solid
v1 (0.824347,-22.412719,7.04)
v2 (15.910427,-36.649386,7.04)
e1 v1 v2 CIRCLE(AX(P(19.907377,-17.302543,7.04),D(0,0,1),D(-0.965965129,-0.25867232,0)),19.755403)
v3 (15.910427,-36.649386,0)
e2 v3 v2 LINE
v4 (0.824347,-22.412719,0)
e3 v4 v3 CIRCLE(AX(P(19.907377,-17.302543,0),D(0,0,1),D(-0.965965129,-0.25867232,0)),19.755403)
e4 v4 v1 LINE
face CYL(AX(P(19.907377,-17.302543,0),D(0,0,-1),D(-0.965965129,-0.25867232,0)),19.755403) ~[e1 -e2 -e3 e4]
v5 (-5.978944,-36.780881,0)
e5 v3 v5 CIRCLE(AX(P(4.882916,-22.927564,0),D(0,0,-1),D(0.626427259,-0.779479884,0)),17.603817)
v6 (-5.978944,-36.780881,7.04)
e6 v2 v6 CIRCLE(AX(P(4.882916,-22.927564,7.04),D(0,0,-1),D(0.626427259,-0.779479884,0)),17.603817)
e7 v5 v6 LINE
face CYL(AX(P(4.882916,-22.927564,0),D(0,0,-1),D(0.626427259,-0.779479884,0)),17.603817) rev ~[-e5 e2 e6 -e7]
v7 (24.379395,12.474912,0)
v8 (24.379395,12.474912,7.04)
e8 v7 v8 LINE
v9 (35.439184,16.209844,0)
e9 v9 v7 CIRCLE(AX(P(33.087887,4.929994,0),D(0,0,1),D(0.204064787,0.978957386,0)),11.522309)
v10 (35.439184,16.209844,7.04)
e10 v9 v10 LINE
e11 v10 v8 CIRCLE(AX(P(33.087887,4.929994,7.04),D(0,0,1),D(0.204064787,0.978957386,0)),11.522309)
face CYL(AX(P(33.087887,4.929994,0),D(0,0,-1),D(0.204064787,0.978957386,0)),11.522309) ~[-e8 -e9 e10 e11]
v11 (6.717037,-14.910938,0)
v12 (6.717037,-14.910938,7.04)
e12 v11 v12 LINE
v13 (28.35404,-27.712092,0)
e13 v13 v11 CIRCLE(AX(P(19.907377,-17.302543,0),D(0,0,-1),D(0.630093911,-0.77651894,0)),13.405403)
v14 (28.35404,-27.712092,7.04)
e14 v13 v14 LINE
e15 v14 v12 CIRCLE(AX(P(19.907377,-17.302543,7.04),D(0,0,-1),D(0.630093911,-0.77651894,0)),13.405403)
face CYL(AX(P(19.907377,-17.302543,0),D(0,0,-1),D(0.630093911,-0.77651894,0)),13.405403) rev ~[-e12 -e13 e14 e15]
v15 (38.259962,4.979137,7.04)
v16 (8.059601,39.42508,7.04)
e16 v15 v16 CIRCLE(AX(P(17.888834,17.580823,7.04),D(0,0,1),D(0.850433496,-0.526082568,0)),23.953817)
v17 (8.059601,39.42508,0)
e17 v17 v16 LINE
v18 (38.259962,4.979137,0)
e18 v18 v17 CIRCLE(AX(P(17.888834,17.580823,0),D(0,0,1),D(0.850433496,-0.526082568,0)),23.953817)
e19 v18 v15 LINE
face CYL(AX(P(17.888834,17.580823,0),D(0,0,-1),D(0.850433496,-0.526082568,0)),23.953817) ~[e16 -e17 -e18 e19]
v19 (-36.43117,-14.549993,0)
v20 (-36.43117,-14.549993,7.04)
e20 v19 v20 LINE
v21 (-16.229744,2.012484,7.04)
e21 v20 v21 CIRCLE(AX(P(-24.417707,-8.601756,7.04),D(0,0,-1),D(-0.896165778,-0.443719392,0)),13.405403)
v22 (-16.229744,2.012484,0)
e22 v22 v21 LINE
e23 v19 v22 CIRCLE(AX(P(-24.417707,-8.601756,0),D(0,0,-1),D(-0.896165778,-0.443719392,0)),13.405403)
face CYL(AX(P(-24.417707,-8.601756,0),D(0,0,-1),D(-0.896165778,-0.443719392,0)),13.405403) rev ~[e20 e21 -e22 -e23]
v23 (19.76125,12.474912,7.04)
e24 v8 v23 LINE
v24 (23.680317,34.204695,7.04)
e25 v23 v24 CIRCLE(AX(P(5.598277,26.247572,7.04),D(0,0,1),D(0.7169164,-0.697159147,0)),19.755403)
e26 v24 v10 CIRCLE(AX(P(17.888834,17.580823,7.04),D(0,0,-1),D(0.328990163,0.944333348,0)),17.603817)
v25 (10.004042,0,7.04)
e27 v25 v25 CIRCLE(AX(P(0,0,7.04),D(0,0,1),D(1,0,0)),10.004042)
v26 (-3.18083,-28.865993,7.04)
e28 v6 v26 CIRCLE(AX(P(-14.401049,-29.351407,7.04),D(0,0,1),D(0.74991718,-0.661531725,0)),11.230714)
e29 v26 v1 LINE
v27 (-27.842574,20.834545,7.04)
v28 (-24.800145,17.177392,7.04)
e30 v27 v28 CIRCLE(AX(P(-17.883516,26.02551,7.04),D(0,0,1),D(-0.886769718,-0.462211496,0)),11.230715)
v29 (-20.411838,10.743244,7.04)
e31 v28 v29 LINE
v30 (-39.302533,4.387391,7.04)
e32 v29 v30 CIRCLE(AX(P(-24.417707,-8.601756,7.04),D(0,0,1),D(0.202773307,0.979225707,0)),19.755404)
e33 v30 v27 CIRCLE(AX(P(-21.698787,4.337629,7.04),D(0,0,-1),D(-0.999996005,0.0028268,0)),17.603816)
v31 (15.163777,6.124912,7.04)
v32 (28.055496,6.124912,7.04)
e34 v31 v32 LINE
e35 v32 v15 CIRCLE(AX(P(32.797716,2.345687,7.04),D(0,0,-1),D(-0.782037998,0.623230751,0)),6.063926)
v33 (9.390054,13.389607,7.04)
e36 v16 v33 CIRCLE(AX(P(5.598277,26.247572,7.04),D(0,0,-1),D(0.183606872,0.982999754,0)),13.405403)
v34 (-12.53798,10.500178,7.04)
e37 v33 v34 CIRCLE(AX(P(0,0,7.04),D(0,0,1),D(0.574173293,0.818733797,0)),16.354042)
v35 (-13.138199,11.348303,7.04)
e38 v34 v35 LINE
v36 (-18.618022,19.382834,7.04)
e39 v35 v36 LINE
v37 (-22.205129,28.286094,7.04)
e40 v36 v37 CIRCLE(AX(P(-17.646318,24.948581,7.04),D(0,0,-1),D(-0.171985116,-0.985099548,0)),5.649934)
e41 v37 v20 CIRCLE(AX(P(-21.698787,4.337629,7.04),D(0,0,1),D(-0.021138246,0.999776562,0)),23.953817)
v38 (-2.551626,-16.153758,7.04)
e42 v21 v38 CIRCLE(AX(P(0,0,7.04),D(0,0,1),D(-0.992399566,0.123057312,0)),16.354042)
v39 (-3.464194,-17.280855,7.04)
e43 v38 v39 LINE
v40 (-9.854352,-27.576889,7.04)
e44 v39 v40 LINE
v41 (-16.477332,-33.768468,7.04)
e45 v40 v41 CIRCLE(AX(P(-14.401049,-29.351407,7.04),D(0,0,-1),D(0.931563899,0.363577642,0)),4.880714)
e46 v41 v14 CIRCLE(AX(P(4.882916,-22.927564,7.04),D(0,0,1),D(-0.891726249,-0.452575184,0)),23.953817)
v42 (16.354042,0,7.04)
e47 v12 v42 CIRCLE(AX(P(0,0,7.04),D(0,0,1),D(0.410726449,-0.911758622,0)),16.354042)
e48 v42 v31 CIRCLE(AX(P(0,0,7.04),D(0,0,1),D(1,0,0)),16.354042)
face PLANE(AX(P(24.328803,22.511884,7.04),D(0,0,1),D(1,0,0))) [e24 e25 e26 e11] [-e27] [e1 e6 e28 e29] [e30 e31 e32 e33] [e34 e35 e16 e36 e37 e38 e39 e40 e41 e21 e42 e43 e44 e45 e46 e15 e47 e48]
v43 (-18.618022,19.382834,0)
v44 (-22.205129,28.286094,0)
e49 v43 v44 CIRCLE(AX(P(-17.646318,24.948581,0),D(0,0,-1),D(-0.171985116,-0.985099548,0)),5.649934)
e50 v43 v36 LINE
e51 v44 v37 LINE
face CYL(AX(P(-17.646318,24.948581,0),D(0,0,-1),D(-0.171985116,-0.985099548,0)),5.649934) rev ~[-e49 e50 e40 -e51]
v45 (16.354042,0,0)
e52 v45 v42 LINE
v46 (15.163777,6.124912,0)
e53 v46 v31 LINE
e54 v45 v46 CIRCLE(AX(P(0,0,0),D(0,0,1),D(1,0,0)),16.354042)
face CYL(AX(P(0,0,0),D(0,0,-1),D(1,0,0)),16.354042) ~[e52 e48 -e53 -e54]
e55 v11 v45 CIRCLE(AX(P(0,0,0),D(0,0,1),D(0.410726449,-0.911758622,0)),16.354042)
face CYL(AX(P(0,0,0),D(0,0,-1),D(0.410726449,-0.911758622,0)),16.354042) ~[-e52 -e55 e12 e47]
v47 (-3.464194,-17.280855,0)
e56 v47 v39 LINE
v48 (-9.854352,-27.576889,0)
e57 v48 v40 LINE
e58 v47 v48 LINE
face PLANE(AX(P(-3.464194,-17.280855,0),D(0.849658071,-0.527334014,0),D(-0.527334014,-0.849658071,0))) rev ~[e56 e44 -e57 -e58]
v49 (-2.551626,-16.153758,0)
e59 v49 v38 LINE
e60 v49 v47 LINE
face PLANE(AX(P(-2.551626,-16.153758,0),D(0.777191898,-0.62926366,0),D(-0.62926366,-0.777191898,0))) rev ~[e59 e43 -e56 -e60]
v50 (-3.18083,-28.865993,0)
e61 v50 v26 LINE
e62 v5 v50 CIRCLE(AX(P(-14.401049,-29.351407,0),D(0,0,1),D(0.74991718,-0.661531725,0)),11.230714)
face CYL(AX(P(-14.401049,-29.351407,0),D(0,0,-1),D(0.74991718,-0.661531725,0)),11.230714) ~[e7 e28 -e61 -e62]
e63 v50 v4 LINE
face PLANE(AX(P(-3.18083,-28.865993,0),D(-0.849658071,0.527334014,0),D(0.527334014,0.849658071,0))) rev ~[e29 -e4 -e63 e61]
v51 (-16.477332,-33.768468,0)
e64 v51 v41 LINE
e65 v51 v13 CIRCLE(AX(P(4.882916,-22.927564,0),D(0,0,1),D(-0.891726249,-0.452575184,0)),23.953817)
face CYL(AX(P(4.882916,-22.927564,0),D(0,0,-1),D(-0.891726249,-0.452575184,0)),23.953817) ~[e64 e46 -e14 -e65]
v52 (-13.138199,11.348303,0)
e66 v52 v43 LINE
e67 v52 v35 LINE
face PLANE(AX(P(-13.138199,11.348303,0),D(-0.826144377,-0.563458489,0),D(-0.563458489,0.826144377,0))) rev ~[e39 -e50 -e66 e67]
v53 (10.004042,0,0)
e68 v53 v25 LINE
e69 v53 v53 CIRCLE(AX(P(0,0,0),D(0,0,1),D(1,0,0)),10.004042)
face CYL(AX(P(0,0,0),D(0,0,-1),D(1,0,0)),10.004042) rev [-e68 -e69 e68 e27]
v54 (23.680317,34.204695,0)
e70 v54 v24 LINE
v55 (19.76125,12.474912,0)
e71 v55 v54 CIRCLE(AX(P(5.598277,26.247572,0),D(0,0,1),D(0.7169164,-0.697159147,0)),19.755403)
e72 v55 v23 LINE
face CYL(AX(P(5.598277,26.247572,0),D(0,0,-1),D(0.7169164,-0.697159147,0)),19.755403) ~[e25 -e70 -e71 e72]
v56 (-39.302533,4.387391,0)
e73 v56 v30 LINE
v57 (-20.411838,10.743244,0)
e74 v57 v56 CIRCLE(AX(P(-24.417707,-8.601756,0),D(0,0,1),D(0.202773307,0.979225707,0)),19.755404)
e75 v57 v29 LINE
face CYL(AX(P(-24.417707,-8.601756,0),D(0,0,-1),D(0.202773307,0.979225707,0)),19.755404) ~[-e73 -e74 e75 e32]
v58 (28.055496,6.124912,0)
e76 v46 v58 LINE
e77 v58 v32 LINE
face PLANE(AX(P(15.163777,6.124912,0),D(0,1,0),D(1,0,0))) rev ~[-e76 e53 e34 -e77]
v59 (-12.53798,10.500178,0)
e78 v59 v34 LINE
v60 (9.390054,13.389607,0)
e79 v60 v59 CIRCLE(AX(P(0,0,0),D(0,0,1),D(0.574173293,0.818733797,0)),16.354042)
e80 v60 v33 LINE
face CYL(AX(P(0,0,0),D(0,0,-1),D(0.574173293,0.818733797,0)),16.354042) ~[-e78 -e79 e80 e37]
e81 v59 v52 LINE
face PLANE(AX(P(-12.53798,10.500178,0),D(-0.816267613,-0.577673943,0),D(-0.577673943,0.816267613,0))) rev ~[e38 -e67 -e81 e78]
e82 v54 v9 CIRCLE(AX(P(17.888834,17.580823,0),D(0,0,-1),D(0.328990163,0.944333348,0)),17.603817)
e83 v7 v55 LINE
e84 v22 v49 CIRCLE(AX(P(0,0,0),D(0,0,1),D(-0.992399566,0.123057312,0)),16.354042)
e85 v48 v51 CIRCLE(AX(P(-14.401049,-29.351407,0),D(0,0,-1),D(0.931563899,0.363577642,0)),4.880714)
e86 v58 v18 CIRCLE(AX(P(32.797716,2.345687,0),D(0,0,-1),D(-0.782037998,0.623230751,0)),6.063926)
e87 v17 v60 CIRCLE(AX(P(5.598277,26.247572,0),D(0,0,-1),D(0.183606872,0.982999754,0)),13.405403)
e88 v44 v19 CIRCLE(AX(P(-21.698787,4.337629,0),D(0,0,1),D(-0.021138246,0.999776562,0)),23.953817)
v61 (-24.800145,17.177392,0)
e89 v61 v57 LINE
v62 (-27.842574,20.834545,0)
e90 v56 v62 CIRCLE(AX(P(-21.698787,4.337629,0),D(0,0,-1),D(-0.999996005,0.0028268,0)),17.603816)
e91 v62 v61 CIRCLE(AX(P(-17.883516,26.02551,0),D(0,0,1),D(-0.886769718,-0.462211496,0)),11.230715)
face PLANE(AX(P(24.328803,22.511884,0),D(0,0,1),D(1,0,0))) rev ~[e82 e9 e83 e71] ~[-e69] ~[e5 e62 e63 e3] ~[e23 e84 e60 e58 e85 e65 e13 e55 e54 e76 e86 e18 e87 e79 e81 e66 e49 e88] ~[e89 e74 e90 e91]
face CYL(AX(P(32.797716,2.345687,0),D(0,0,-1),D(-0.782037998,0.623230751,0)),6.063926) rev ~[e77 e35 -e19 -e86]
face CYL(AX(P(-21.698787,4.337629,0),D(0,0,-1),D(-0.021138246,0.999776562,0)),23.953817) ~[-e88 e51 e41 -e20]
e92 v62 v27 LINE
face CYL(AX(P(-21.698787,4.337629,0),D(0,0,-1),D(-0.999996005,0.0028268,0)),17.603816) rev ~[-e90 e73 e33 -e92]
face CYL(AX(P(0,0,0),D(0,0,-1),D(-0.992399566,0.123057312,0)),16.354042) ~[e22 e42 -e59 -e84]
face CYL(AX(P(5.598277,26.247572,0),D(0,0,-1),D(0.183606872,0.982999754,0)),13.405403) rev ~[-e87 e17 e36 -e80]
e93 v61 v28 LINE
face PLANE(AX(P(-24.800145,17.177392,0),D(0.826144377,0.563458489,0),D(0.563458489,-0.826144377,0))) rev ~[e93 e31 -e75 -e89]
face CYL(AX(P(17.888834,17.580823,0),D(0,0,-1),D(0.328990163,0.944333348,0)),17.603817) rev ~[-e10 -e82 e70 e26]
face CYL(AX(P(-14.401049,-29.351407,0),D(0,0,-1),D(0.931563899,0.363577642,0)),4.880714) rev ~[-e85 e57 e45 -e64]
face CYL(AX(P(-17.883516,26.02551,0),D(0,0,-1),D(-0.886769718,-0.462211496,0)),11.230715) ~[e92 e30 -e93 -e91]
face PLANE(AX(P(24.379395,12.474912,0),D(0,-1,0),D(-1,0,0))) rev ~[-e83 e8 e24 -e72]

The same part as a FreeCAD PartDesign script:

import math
import FreeCAD as App
import Part
import Sketcher

V = App.Vector

doc = App.newDocument("Part")
body = doc.addObject("PartDesign::Body", "Body")

sketch1 = body.newObject("Sketcher::SketchObject", "Sketch")
sketch1.AttachmentSupport = (doc.getObject("XY_Plane"), [""])
sketch1.MapMode = "FlatFace"
sketch1.addGeometry(Part.ArcOfCircle(Part.Circle(V(5.598277, 26.247572, 0), V(0, 0, 1), 13.405403), math.radians(-73.569364), math.radians(79.420079)), False)
sketch1.addGeometry(Part.ArcOfCircle(Part.Circle(V(0, 0, 0), V(0, 0, 1), 16.354042), math.radians(54.958242), math.radians(140.054848)), False)
sketch1.addGeometry(Part.LineSegment(V(-12.53798, 10.500178, 0), V(-13.138199, 11.348303, 0)), False)
sketch1.addGeometry(Part.LineSegment(V(-13.138199, 11.348303, 0), V(-18.618022, 19.382834, 0)), False)
sketch1.addGeometry(Part.ArcOfCircle(Part.Circle(V(-17.646318, 24.948581, 0), V(0, 0, 1), 5.649934), math.radians(143.792087), math.radians(260.096742)), False)
sketch1.addGeometry(Part.ArcOfCircle(Part.Circle(V(-21.698787, 4.337629, 0), V(0, 0, 1), 23.953817), math.radians(91.211222), math.radians(232.045698)), False)
sketch1.addGeometry(Part.ArcOfCircle(Part.Circle(V(-24.417707, -8.601756, 0), V(0, 0, 1), 13.405403), math.radians(52.352939), math.radians(206.341435)), False)
sketch1.addGeometry(Part.ArcOfCircle(Part.Circle(V(0, 0, 0), V(0, 0, 1), 16.354042), math.radians(172.931418), math.radians(261.023801)), False)
sketch1.addGeometry(Part.LineSegment(V(-2.551626, -16.153758, 0), V(-3.464194, -17.280855, 0)), False)
sketch1.addGeometry(Part.LineSegment(V(-3.464194, -17.280855, 0), V(-9.854352, -27.576889, 0)), False)
sketch1.addGeometry(Part.ArcOfCircle(Part.Circle(V(-14.401049, -29.351407, 0), V(0, 0, 1), 4.880714), math.radians(-115.17633), math.radians(21.320075)), False)
sketch1.addGeometry(Part.ArcOfCircle(Part.Circle(V(4.882916, -22.927564, 0), V(0, 0, 1), 23.953817), math.radians(-153.090975), math.radians(-11.521736)), False)
sketch1.addGeometry(Part.ArcOfCircle(Part.Circle(V(19.907377, -17.302543, 0), V(0, 0, 1), 13.405403), math.radians(169.723074), math.radians(309.057051)), False)
sketch1.addGeometry(Part.ArcOfCircle(Part.Circle(V(0, 0, 0), V(0, 0, 1), 16.354042), math.radians(-65.749523), math.radians(0)), False)
sketch1.addGeometry(Part.ArcOfCircle(Part.Circle(V(0, 0, 0), V(0, 0, 1), 16.354042), math.radians(0), math.radians(21.994633)), False)
sketch1.addGeometry(Part.LineSegment(V(15.163777, 6.124912, 0), V(28.055496, 6.124912, 0)), False)
sketch1.addGeometry(Part.ArcOfCircle(Part.Circle(V(32.797716, 2.345687, 0), V(0, 0, 1), 6.063926), math.radians(25.73958), math.radians(141.447553)), False)
sketch1.addGeometry(Part.ArcOfCircle(Part.Circle(V(17.888834, 17.580823, 0), V(0, 0, 1), 23.953817), math.radians(-31.74115), math.radians(114.226255)), False)
sketch1.addGeometry(Part.ArcOfCircle(Part.Circle(V(4.882916, -22.927564, 0), V(0, 0, 1), 17.603817), math.radians(-128.098648), math.radians(-51.212979)), False)
sketch1.addGeometry(Part.ArcOfCircle(Part.Circle(V(-14.401049, -29.351407, 0), V(0, 0, 1), 11.230714), math.radians(-41.416796), math.radians(2.477213)), False)
sketch1.addGeometry(Part.LineSegment(V(-3.18083, -28.865993, 0), V(0.824347, -22.412719, 0)), False)
sketch1.addGeometry(Part.ArcOfCircle(Part.Circle(V(19.907377, -17.302543, 0), V(0, 0, 1), 19.755403), math.radians(-165.008703), math.radians(-101.672768)), False)
sketch1.addGeometry(Part.ArcOfCircle(Part.Circle(V(-21.698787, 4.337629, 0), V(0, 0, 1), 17.603816), math.radians(110.426352), math.radians(179.838036)), False)
sketch1.addGeometry(Part.ArcOfCircle(Part.Circle(V(-17.883516, 26.02551, 0), V(0, 0, 1), 11.230715), math.radians(-152.470096), math.radians(-128.014961)), False)
sketch1.addGeometry(Part.LineSegment(V(-24.800145, 17.177392, 0), V(-20.411838, 10.743244, 0)), False)
sketch1.addGeometry(Part.ArcOfCircle(Part.Circle(V(-24.417707, -8.601756, 0), V(0, 0, 1), 19.755404), math.radians(78.300819), math.radians(138.890634)), False)
sketch1.addGeometry(Part.Circle(V(0, 0, 0), V(0, 0, 1), 10.004042), False)
sketch1.addGeometry(Part.ArcOfCircle(Part.Circle(V(17.888834, 17.580823, 0), V(0, 0, 1), 17.603817), math.radians(-4.466697), math.radians(70.792506)), False)
sketch1.addGeometry(Part.ArcOfCircle(Part.Circle(V(33.087887, 4.929994, 0), V(0, 0, 1), 11.522309), math.radians(78.225242), math.radians(139.094796)), False)
sketch1.addGeometry(Part.LineSegment(V(24.379395, 12.474912, 0), V(19.76125, 12.474912, 0)), False)
sketch1.addGeometry(Part.ArcOfCircle(Part.Circle(V(5.598277, 26.247572, 0), V(0, 0, 1), 19.755403), math.radians(-44.199524), math.radians(23.752217)), False)
sketch1.addConstraint(Sketcher.Constraint("Coincident", 0, 1, 1, 1))
sketch1.addConstraint(Sketcher.Constraint("Coincident", 1, 2, 2, 1))
sketch1.addConstraint(Sketcher.Constraint("Coincident", 2, 2, 3, 1))
sketch1.addConstraint(Sketcher.Constraint("Coincident", 3, 2, 4, 2))
sketch1.addConstraint(Sketcher.Constraint("Coincident", 4, 1, 5, 1))
sketch1.addConstraint(Sketcher.Constraint("Coincident", 5, 2, 6, 2))
sketch1.addConstraint(Sketcher.Constraint("Coincident", 6, 1, 7, 1))
sketch1.addConstraint(Sketcher.Constraint("Coincident", 7, 2, 8, 1))
sketch1.addConstraint(Sketcher.Constraint("Coincident", 8, 2, 9, 1))
sketch1.addConstraint(Sketcher.Constraint("Coincident", 9, 2, 10, 2))
sketch1.addConstraint(Sketcher.Constraint("Coincident", 10, 1, 11, 1))
sketch1.addConstraint(Sketcher.Constraint("Coincident", 11, 2, 12, 2))
sketch1.addConstraint(Sketcher.Constraint("Coincident", 12, 1, 13, 1))
sketch1.addConstraint(Sketcher.Constraint("Coincident", 13, 2, 14, 1))
sketch1.addConstraint(Sketcher.Constraint("Coincident", 14, 2, 15, 1))
sketch1.addConstraint(Sketcher.Constraint("Coincident", 15, 2, 16, 2))
sketch1.addConstraint(Sketcher.Constraint("Coincident", 16, 1, 17, 1))
sketch1.addConstraint(Sketcher.Constraint("Coincident", 17, 2, 0, 2))
sketch1.addConstraint(Sketcher.Constraint("Coincident", 18, 1, 19, 1))
sketch1.addConstraint(Sketcher.Constraint("Coincident", 19, 2, 20, 1))
sketch1.addConstraint(Sketcher.Constraint("Coincident", 20, 2, 21, 1))
sketch1.addConstraint(Sketcher.Constraint("Coincident", 21, 2, 18, 2))
sketch1.addConstraint(Sketcher.Constraint("Coincident", 22, 1, 23, 1))
sketch1.addConstraint(Sketcher.Constraint("Coincident", 23, 2, 24, 1))
sketch1.addConstraint(Sketcher.Constraint("Coincident", 24, 2, 25, 1))
sketch1.addConstraint(Sketcher.Constraint("Coincident", 25, 2, 22, 2))
sketch1.addConstraint(Sketcher.Constraint("Coincident", 27, 1, 28, 1))
sketch1.addConstraint(Sketcher.Constraint("Coincident", 28, 2, 29, 1))
sketch1.addConstraint(Sketcher.Constraint("Coincident", 29, 2, 30, 1))
sketch1.addConstraint(Sketcher.Constraint("Coincident", 30, 2, 27, 2))
sketch1.addConstraint(Sketcher.Constraint("Horizontal", 15))
sketch1.addConstraint(Sketcher.Constraint("Horizontal", 29))
sketch1.addConstraint(Sketcher.Constraint("Coincident", 1, 3, -1, 1))
sketch1.addConstraint(Sketcher.Constraint("Coincident", 7, 3, -1, 1))
sketch1.addConstraint(Sketcher.Constraint("Coincident", 13, 3, -1, 1))
sketch1.addConstraint(Sketcher.Constraint("Coincident", 14, 3, -1, 1))
sketch1.addConstraint(Sketcher.Constraint("Coincident", 26, 3, -1, 1))
sketch1.addConstraint(Sketcher.Constraint("Coincident", 18, 3, 11, 3))
sketch1.addConstraint(Sketcher.Constraint("Coincident", 19, 3, 10, 3))
sketch1.addConstraint(Sketcher.Constraint("Coincident", 21, 3, 12, 3))
sketch1.addConstraint(Sketcher.Constraint("Coincident", 22, 3, 5, 3))
sketch1.addConstraint(Sketcher.Constraint("Coincident", 25, 3, 6, 3))
sketch1.addConstraint(Sketcher.Constraint("Coincident", 27, 3, 17, 3))
sketch1.addConstraint(Sketcher.Constraint("Coincident", 30, 3, 0, 3))
sketch1.addConstraint(Sketcher.Constraint("PointOnObject", 13, 2, -1))
sketch1.addConstraint(Sketcher.Constraint("Radius", 1, 16.354042))
sketch1.addConstraint(Sketcher.Constraint("Radius", 7, 16.354042))
sketch1.addConstraint(Sketcher.Constraint("Radius", 13, 16.354042))
sketch1.addConstraint(Sketcher.Constraint("Radius", 28, 11.522309))
sketch1.addConstraint(Sketcher.Constraint("DistanceY", 25, 2, 23, 2, 12.79))
sketch1.addConstraint(Sketcher.Constraint("DistanceY", 15, 2, 28, 2, 6.35))
sketch1.addConstraint(Sketcher.Constraint("Diameter", 26, 20.008083))
sketch1.addConstraint(Sketcher.Constraint("Radius", 0, 13.405403))
sketch1.addConstraint(Sketcher.Constraint("Radius", 4, 5.649934))
sketch1.addConstraint(Sketcher.Constraint("Radius", 5, 23.953817))
sketch1.addConstraint(Sketcher.Constraint("Radius", 6, 13.405403))
sketch1.addConstraint(Sketcher.Constraint("Radius", 10, 4.880714))
sketch1.addConstraint(Sketcher.Constraint("Radius", 11, 23.953817))
sketch1.addConstraint(Sketcher.Constraint("Radius", 12, 13.405403))
sketch1.addConstraint(Sketcher.Constraint("Radius", 16, 6.063926))
sketch1.addConstraint(Sketcher.Constraint("Radius", 17, 23.953817))
sketch1.addConstraint(Sketcher.Constraint("Radius", 18, 17.603817))
sketch1.addConstraint(Sketcher.Constraint("Radius", 19, 11.230714))
sketch1.addConstraint(Sketcher.Constraint("Radius", 21, 19.755403))
sketch1.addConstraint(Sketcher.Constraint("Radius", 22, 17.603816))
sketch1.addConstraint(Sketcher.Constraint("Radius", 23, 11.230715))
sketch1.addConstraint(Sketcher.Constraint("Radius", 25, 19.755404))
sketch1.addConstraint(Sketcher.Constraint("Radius", 27, 17.603817))
sketch1.addConstraint(Sketcher.Constraint("Radius", 30, 19.755403))
sketch1.addConstraint(Sketcher.Constraint("DistanceX", 15, 1, 15, 2, 12.891719))
sketch1.addConstraint(Sketcher.Constraint("DistanceX", 2, 2, -1, 1, 13.138199))
sketch1.addConstraint(Sketcher.Constraint("DistanceX", -1, 1, 17, 2, 8.059601))
sketch1.addConstraint(Sketcher.Constraint("DistanceX", 28, 2, 15, 2, 3.676101))
sketch1.addConstraint(Sketcher.Constraint("DistanceX", 29, 2, 29, 1, 4.618145))
sketch1.addConstraint(Sketcher.Constraint("DistanceY", -1, 1, 0, 3, 26.247572))
sketch1.addConstraint(Sketcher.Constraint("DistanceY", -1, 1, 4, 3, 24.948581))
sketch1.addConstraint(Sketcher.Constraint("DistanceY", -1, 1, 5, 3, 4.337629))
sketch1.addConstraint(Sketcher.Constraint("DistanceX", 10, 3, -1, 1, 14.401049))
sketch1.addConstraint(Sketcher.Constraint("DistanceY", -1, 1, 23, 3, 26.02551))
sketch1.addConstraint(Sketcher.Constraint("DistanceX", 1, 2, -1, 1, 12.53798))
sketch1.addConstraint(Sketcher.Constraint("DistanceX", 4, 1, -1, 1, 22.205129))
sketch1.addConstraint(Sketcher.Constraint("DistanceX", 5, 2, -1, 1, 36.43117))
sketch1.addConstraint(Sketcher.Constraint("DistanceY", 9, 2, -1, 1, 27.576889))
sketch1.addConstraint(Sketcher.Constraint("DistanceX", 10, 1, -1, 1, 16.477332))
sketch1.addConstraint(Sketcher.Constraint("DistanceX", -1, 1, 11, 2, 28.35404))
sketch1.addConstraint(Sketcher.Constraint("DistanceY", 12, 1, -1, 1, 14.910938))
sketch1.addConstraint(Sketcher.Constraint("DistanceY", -1, 1, 14, 2, 6.124912))
sketch1.addConstraint(Sketcher.Constraint("DistanceY", 18, 1, -1, 1, 36.780881))
sketch1.addConstraint(Sketcher.Constraint("DistanceX", 19, 2, -1, 1, 3.18083))
sketch1.addConstraint(Sketcher.Constraint("DistanceY", 20, 2, -1, 1, 22.412719))
sketch1.addConstraint(Sketcher.Constraint("DistanceY", -1, 1, 23, 2, 17.177392))
sketch1.addConstraint(Sketcher.Constraint("DistanceX", 24, 2, -1, 1, 20.411838))
sketch1.addConstraint(Sketcher.Constraint("DistanceX", 5, 3, 4, 3, 4.05247))
sketch1.addConstraint(Sketcher.Constraint("DistanceY", 10, 3, 6, 3, 20.749651))
sketch1.addConstraint(Sketcher.Constraint("DistanceX", 12, 3, 16, 3, 12.890339))
sketch1.addConstraint(Sketcher.Constraint("DistanceY", 17, 3, 0, 3, 8.666749))
sketch1.addConstraint(Sketcher.Constraint("DistanceX", 5, 3, 23, 3, 3.815272))
sketch1.addConstraint(Sketcher.Constraint("DistanceX", 16, 3, 28, 3, 0.29017))
sketch1.addConstraint(Sketcher.Constraint("DistanceY", 2, 2, 4, 3, 13.600279))
sketch1.addConstraint(Sketcher.Constraint("DistanceY", 2, 2, 3, 2, 8.034531))
sketch1.addConstraint(Sketcher.Constraint("DistanceX", 7, 2, 11, 3, 7.434542))
sketch1.addConstraint(Sketcher.Constraint("DistanceX", 8, 2, 7, 2, 0.912569))
sketch1.addConstraint(Sketcher.Constraint("DistanceY", 11, 3, 8, 2, 5.64671))
pad1 = body.newObject("PartDesign::Pad", "Pad")
pad1.Profile = sketch1
pad1.Length = 7.04

doc.recompute()
